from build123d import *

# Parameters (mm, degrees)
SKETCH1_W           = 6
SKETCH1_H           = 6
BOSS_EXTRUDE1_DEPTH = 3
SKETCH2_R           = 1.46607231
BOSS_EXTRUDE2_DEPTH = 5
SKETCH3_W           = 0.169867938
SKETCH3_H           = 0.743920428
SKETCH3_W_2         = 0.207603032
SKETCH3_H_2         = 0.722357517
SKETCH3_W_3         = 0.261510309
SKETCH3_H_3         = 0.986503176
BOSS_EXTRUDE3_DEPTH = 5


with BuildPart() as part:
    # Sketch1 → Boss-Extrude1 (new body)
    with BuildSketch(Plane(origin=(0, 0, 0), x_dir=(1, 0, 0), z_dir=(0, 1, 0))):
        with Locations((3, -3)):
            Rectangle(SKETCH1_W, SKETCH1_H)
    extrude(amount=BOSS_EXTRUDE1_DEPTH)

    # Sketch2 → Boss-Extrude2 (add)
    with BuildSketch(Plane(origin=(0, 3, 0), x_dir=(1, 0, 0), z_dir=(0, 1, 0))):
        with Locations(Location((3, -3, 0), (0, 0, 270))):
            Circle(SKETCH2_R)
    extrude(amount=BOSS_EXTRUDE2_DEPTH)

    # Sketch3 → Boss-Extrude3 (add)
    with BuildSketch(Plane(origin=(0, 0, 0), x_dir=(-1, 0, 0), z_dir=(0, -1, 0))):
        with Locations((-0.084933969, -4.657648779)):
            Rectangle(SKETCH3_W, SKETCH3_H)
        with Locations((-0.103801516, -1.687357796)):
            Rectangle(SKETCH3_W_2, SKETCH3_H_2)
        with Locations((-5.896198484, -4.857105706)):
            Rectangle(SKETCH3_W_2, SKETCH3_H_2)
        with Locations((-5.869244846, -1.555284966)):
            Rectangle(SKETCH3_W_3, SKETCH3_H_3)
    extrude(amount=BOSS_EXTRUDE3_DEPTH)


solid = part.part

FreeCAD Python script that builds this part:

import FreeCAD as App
import Part
import Sketcher
from FreeCAD import Vector
Q = App.Units.Quantity

doc = App.newDocument("Part")
body = doc.addObject("PartDesign::Body", "Body")

sketch1 = body.newObject("Sketcher::SketchObject", "Sketch")
sketch1.AttachmentSupport = (doc.getObject("XZ_Plane"), [""])
sketch1.MapMode = "FlatFace"
sketch1.addGeometry(Part.LineSegment(Vector(0, 0, 0), Vector(0, 6, 0)), False)
sketch1.addGeometry(Part.LineSegment(Vector(0, 6, 0), Vector(6, 6, 0)), False)
sketch1.addGeometry(Part.LineSegment(Vector(6, 6, 0), Vector(6, 0, 0)), False)
sketch1.addGeometry(Part.LineSegment(Vector(6, 0, 0), Vector(0, 0, 0)), False)
sketch1.addConstraint(Sketcher.Constraint("Coincident", 0, 2, 1, 1))
sketch1.addConstraint(Sketcher.Constraint("Coincident", 1, 2, 2, 1))
sketch1.addConstraint(Sketcher.Constraint("Coincident", 2, 2, 3, 1))
sketch1.addConstraint(Sketcher.Constraint("Coincident", 3, 2, 0, 1))
sketch1.addConstraint(Sketcher.Constraint("Vertical", 0))
sketch1.addConstraint(Sketcher.Constraint("Horizontal", 1))
sketch1.addConstraint(Sketcher.Constraint("Vertical", 2))
sketch1.addConstraint(Sketcher.Constraint("Horizontal", 3))
sketch1.addConstraint(Sketcher.Constraint("Coincident", 3, 2, -1, 1))
sketch1.addConstraint(Sketcher.Constraint("Equal", 3, 0))
sketch1.addConstraint(Sketcher.Constraint("DistanceX", 1, 1, 1, 2, Q("6 mm")))
pad1 = body.newObject("PartDesign::Pad", "Pad")
pad1.Profile = sketch1
pad1.Length = 3
pad1.Reversed = True

sketch2 = body.newObject("Sketcher::SketchObject", "Sketch001")
sketch2.AttachmentSupport = (doc.getObject("XZ_Plane"), [""])
sketch2.MapMode = "FlatFace"
sketch2.AttachmentOffset = App.Placement(Vector(0, 0, -3), App.Rotation())
sketch2.addGeometry(Part.Circle(Vector(3, 3, 0), Vector(0, 0, 1), 1.5), False)
sketch2.addConstraint(Sketcher.Constraint("DistanceX", -1, 1, 0, 3, Q("3 mm")))
sketch2.addConstraint(Sketcher.Constraint("DistanceY", -1, 1, 0, 3, Q("3 mm")))
sketch2.addConstraint(Sketcher.Constraint("Diameter", 0, Q("2.932145 mm")))
pad2 = body.newObject("PartDesign::Pad", "Pad001")
pad2.Profile = sketch2
pad2.Length = 5
pad2.Reversed = True

sketch3 = body.newObject("Sketcher::SketchObject", "Sketch002")
sketch3.AttachmentSupport = (doc.getObject("XZ_Plane"), [""])
sketch3.MapMode = "FlatFace"
sketch3.addGeometry(Part.LineSegment(Vector(0.17, 4.29, 0), Vector(0.17, 5.03, 0)), False)
sketch3.addGeometry(Part.LineSegment(Vector(0.17, 5.03, 0), Vector(0, 5.03, 0)), False)
sketch3.addGeometry(Part.LineSegment(Vector(0, 5.03, 0), Vector(0, 4.29, 0)), False)
sketch3.addGeometry(Part.LineSegment(Vector(0, 4.29, 0), Vector(0.17, 4.29, 0)), False)
sketch3.addGeometry(Part.LineSegment(Vector(0.21, 1.33, 0), Vector(0.21, 2.05, 0)), False)
sketch3.addGeometry(Part.LineSegment(Vector(0.21, 2.05, 0), Vector(0, 2.05, 0)), False)
sketch3.addGeometry(Part.LineSegment(Vector(0, 2.05, 0), Vector(0, 1.33, 0)), False)
sketch3.addGeometry(Part.LineSegment(Vector(0, 1.33, 0), Vector(0.21, 1.33, 0)), False)
sketch3.addGeometry(Part.LineSegment(Vector(6, 4.5, 0), Vector(6, 5.22, 0)), False)
sketch3.addGeometry(Part.LineSegment(Vector(6, 5.22, 0), Vector(5.79, 5.22, 0)), False)
sketch3.addGeometry(Part.LineSegment(Vector(5.79, 5.22, 0), Vector(5.79, 4.5, 0)), False)
sketch3.addGeometry(Part.LineSegment(Vector(5.79, 4.5, 0), Vector(6, 4.5, 0)), False)
sketch3.addGeometry(Part.LineSegment(Vector(6, 1.06, 0), Vector(6, 2.05, 0)), False)
sketch3.addGeometry(Part.LineSegment(Vector(6, 2.05, 0), Vector(5.74, 2.05, 0)), False)
sketch3.addGeometry(Part.LineSegment(Vector(5.74, 2.05, 0), Vector(5.74, 1.06, 0)), False)
sketch3.addGeometry(Part.LineSegment(Vector(5.74, 1.06, 0), Vector(6, 1.06, 0)), False)
sketch3.addConstraint(Sketcher.Constraint("Coincident", 0, 2, 1, 1))
sketch3.addConstraint(Sketcher.Constraint("Coincident", 1, 2, 2, 1))
sketch3.addConstraint(Sketcher.Constraint("Coincident", 2, 2, 3, 1))
sketch3.addConstraint(Sketcher.Constraint("Coincident", 3, 2, 0, 1))
sketch3.addConstraint(Sketcher.Constraint("Coincident", 4, 2, 5, 1))
sketch3.addConstraint(Sketcher.Constraint("Coincident", 5, 2, 6, 1))
sketch3.addConstraint(Sketcher.Constraint("Coincident", 6, 2, 7, 1))
sketch3.addConstraint(Sketcher.Constraint("Coincident", 7, 2, 4, 1))
sketch3.addConstraint(Sketcher.Constraint("Coincident", 8, 2, 9, 1))
sketch3.addConstraint(Sketcher.Constraint("Coincident", 9, 2, 10, 1))
sketch3.addConstraint(Sketcher.Constraint("Coincident", 10, 2, 11, 1))
sketch3.addConstraint(Sketcher.Constraint("Coincident", 11, 2, 8, 1))
sketch3.addConstraint(Sketcher.Constraint("Coincident", 12, 2, 13, 1))
sketch3.addConstraint(Sketcher.Constraint("Coincident", 13, 2, 14, 1))
sketch3.addConstraint(Sketcher.Constraint("Coincident", 14, 2, 15, 1))
sketch3.addConstraint(Sketcher.Constraint("Coincident", 15, 2, 12, 1))
sketch3.addConstraint(Sketcher.Constraint("Vertical", 0))
sketch3.addConstraint(Sketcher.Constraint("Horizontal", 1))
sketch3.addConstraint(Sketcher.Constraint("Vertical", 2))
sketch3.addConstraint(Sketcher.Constraint("Horizontal", 3))
sketch3.addConstraint(Sketcher.Constraint("Vertical", 4))
sketch3.addConstraint(Sketcher.Constraint("Horizontal", 5))
sketch3.addConstraint(Sketcher.Constraint("Vertical", 6))
sketch3.addConstraint(Sketcher.Constraint("Horizontal", 7))
sketch3.addConstraint(Sketcher.Constraint("Vertical", 8))
sketch3.addConstraint(Sketcher.Constraint("Horizontal", 9))
sketch3.addConstraint(Sketcher.Constraint("Vertical", 10))
sketch3.addConstraint(Sketcher.Constraint("Horizontal", 11))
sketch3.addConstraint(Sketcher.Constraint("Vertical", 12))
sketch3.addConstraint(Sketcher.Constraint("Horizontal", 13))
sketch3.addConstraint(Sketcher.Constraint("Vertical", 14))
sketch3.addConstraint(Sketcher.Constraint("Horizontal", 15))
sketch3.addConstraint(Sketcher.Constraint("PointOnObject", 1, 2, -2))
sketch3.addConstraint(Sketcher.Constraint("PointOnObject", 5, 2, -2))
sketch3.addConstraint(Sketcher.Constraint("Horizontal", 5, 2, 12, 2))
sketch3.addConstraint(Sketcher.Constraint("Vertical", 11, 2, 12, 2))
sketch3.addConstraint(Sketcher.Constraint("Equal", 7, 9))
sketch3.addConstraint(Sketcher.Constraint("Equal", 6, 8))
sketch3.addConstraint(Sketcher.Constraint("DistanceX", -1, 1, 8, 2, Q("6 mm")))
sketch3.addConstraint(Sketcher.Constraint("DistanceX", 13, 2, 13, 1, Q("0.26151 mm")))
sketch3.addConstraint(Sketcher.Constraint("DistanceY", 0, 1, 0, 2, Q("0.74392 mm")))
sketch3.addConstraint(Sketcher.Constraint("DistanceX", 1, 2, 1, 1, Q("0.169868 mm")))
sketch3.addConstraint(Sketcher.Constraint("DistanceX", 5, 2, 5, 1, Q("0.207603 mm")))
sketch3.addConstraint(Sketcher.Constraint("DistanceY", 4, 1, 4, 2, Q("0.722358 mm")))
sketch3.addConstraint(Sketcher.Constraint("DistanceY", 12, 1, 12, 2, Q("0.986503 mm")))
sketch3.addConstraint(Sketcher.Constraint("DistanceY", -1, 1, 0, 2, Q("5.029609 mm")))
sketch3.addConstraint(Sketcher.Constraint("DistanceY", -1, 1, 6, 2, Q("1.326179 mm")))
sketch3.addConstraint(Sketcher.Constraint("DistanceY", 3, 2, 10, 2, Q("0.210238 mm")))
pad3 = body.newObject("PartDesign::Pad", "Pad002")
pad3.Profile = sketch3
pad3.Length = 5

doc.recompute()
